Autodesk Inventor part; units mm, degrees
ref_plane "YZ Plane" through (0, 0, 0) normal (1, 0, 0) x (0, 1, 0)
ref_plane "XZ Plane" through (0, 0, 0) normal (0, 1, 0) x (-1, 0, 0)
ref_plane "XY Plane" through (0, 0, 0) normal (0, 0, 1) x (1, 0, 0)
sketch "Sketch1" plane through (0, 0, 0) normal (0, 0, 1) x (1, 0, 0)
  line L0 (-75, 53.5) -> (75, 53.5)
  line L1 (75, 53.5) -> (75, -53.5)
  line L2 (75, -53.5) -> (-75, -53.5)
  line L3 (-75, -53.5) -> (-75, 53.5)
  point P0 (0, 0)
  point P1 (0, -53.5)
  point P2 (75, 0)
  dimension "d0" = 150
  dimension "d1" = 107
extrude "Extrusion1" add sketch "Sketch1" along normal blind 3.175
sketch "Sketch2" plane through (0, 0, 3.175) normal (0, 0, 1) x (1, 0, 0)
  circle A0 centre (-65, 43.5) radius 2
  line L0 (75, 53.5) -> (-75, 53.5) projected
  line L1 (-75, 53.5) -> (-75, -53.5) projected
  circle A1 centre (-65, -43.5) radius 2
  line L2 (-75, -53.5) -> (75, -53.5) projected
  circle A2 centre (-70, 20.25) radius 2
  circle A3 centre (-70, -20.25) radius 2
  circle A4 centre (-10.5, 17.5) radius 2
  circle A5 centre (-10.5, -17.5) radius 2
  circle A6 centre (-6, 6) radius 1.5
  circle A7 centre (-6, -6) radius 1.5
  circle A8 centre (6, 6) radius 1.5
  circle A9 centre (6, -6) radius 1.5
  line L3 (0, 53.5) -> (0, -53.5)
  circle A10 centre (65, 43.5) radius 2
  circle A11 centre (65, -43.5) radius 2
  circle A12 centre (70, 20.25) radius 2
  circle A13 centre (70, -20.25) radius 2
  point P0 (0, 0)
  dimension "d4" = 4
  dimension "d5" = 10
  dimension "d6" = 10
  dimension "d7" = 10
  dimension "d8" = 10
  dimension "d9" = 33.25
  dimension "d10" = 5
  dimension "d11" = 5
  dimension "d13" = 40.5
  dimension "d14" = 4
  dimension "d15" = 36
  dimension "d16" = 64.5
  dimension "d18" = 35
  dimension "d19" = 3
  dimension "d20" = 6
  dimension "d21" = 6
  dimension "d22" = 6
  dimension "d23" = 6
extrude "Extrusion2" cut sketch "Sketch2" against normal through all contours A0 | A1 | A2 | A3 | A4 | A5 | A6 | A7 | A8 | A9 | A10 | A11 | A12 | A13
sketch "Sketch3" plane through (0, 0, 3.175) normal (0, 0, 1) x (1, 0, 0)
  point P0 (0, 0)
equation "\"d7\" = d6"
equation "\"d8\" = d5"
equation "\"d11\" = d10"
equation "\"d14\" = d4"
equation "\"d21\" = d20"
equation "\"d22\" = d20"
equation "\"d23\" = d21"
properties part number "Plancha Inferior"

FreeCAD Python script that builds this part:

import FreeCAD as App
import Part
import Sketcher


def add_polygon(sketch, points):
    """Adds a closed chain of lines whose ends are joined by coincident constraints."""
    first, n = sketch.GeometryCount, len(points)
    for a, b in zip(points, points[1:] + points[:1]):
        sketch.addGeometry(Part.LineSegment(App.Vector(*a, 0), App.Vector(*b, 0)), False)
    for i in range(n):
        sketch.addConstraint(Sketcher.Constraint("Coincident", first + i, 2, first + (i + 1) % n, 1))

doc = App.newDocument("Part")
body = doc.addObject("PartDesign::Body", "Body")

# Sketch on XY plane
sketch1 = body.newObject("Sketcher::SketchObject", "Sketch")
sketch1.AttachmentSupport = (doc.getObject("XY_Plane"), [""])
sketch1.MapMode = "FlatFace"
add_polygon(sketch1, [(75, 54), (-75, 54), (-75, -54), (75, -54)])  # lines 0-3
sketch1.addConstraint([
    Sketcher.Constraint("Horizontal", 0),
    Sketcher.Constraint("Vertical", 1),
    Sketcher.Constraint("Horizontal", 2),
    Sketcher.Constraint("Vertical", 3),
    Sketcher.Constraint("Symmetric", 0, 2, 2, 2, -1, 1),
    Sketcher.Constraint("DistanceX", 0, 2, 0, 1, 150.0),
    Sketcher.Constraint("DistanceY", 1, 2, 1, 1, 107.0),
])
pad1 = body.newObject("PartDesign::Pad", "Pad")
pad1.Profile = sketch1
pad1.Length = 3.175

# Sketch on XY plane
sketch2 = body.newObject("Sketcher::SketchObject", "Sketch001")
sketch2.AttachmentSupport = (doc.getObject("XY_Plane"), [""])
sketch2.MapMode = "FlatFace"
sketch2.AttachmentOffset = App.Placement(App.Vector(0, 0, 3.175), App.Rotation())
sketch2.addGeometry([
    Part.Circle(App.Vector(-65, 43.5, 0), App.Vector(0, 0, 1), 2),  # 0
    Part.Circle(App.Vector(-65, -43.5, 0), App.Vector(0, 0, 1), 2),  # 1
    Part.Circle(App.Vector(-70, 20.2, 0), App.Vector(0, 0, 1), 2),  # 2
    Part.Circle(App.Vector(-70, -20.2, 0), App.Vector(0, 0, 1), 2),  # 3
    Part.Circle(App.Vector(-10.5, 17.5, 0), App.Vector(0, 0, 1), 2),  # 4
    Part.Circle(App.Vector(-10.5, -17.5, 0), App.Vector(0, 0, 1), 2),  # 5
    Part.Circle(App.Vector(-6, 6, 0), App.Vector(0, 0, 1), 1.5),  # 6
    Part.Circle(App.Vector(-6, -6, 0), App.Vector(0, 0, 1), 1.5),  # 7
    Part.Circle(App.Vector(6, 6, 0), App.Vector(0, 0, 1), 1.5),  # 8
    Part.Circle(App.Vector(6, -6, 0), App.Vector(0, 0, 1), 1.5),  # 9
    Part.Circle(App.Vector(65, 43.5, 0), App.Vector(0, 0, 1), 2),  # 10
    Part.Circle(App.Vector(65, -43.5, 0), App.Vector(0, 0, 1), 2),  # 11
    Part.Circle(App.Vector(70, 20.2, 0), App.Vector(0, 0, 1), 2),  # 12
    Part.Circle(App.Vector(70, -20.2, 0), App.Vector(0, 0, 1), 2),  # 13
], False)
sketch2.addConstraint([
    Sketcher.Constraint("Equal", 0, 1),
    Sketcher.Constraint("Equal", 1, 2),
    Sketcher.Constraint("Equal", 2, 3),
    Sketcher.Constraint("Equal", 3, 4),
    Sketcher.Constraint("Equal", 4, 5),
    Sketcher.Constraint("Equal", 6, 7),
    Sketcher.Constraint("Equal", 7, 8),
    Sketcher.Constraint("Equal", 8, 9),
    Sketcher.Constraint("Equal", 5, 10),
    Sketcher.Constraint("Equal", 10, 11),
    Sketcher.Constraint("Equal", 11, 12),
    Sketcher.Constraint("Equal", 12, 13),
    Sketcher.Constraint("Symmetric", 7, 3, 8, 3, -1, 1),
    Sketcher.Constraint("Symmetric", 6, 3, 9, 3, -1, 1),
    Sketcher.Constraint("Symmetric", 1, 3, 10, 3, -1, 1),
    Sketcher.Constraint("Symmetric", 0, 3, 11, 3, -1, 1),
    Sketcher.Constraint("Symmetric", 3, 3, 12, 3, -1, 1),
    Sketcher.Constraint("Symmetric", 2, 3, 13, 3, -1, 1),
    Sketcher.Constraint("Symmetric", 6, 3, 8, 3, -2),
    Sketcher.Constraint("Symmetric", 0, 3, 10, 3, -2),
    Sketcher.Constraint("Symmetric", 2, 3, 12, 3, -2),
    Sketcher.Constraint("Symmetric", 4, 3, 5, 3, -1),
    Sketcher.Constraint("Diameter", 0, 4.0),
    Sketcher.Constraint("Diameter", 6, 3.0),
    Sketcher.Constraint("DistanceX", 6, 3, -1, 1, 6.0),
    Sketcher.Constraint("DistanceY", -1, 1, 6, 3, 6.0),
    Sketcher.Constraint("DistanceX", 2, 3, 0, 3, 5.0),
    Sketcher.Constraint("DistanceY", 5, 3, 4, 3, 35.0),
    Sketcher.Constraint("DistanceY", 3, 3, 2, 3, 40.5),
    Sketcher.Constraint("DistanceX", 0, 3, -1, 1, 65.0),
    Sketcher.Constraint("DistanceY", 1, 3, 0, 3, 87.0),
    Sketcher.Constraint("DistanceX", 4, 3, -1, 1, 10.5),
])
pocket1 = body.newObject("PartDesign::Pocket", "Pocket")
pocket1.Profile = sketch2
pocket1.Type = "ThroughAll"

doc.recompute()
